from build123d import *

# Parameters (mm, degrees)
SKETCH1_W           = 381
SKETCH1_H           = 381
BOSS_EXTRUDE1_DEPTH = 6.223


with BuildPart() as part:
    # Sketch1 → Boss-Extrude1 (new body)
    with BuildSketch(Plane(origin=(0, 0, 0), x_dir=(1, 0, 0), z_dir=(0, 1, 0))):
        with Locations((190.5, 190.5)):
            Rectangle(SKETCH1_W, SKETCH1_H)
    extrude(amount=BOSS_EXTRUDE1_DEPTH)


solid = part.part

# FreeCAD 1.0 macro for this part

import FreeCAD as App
import Part
import Sketcher

V = App.Vector
Q = App.Units.Quantity


def add_polygon(sketch, points):
    """Adds a closed chain of lines whose ends are joined by coincident constraints."""
    first, n = sketch.GeometryCount, len(points)
    for a, b in zip(points, points[1:] + points[:1]):
        sketch.addGeometry(Part.LineSegment(App.Vector(*a, 0), App.Vector(*b, 0)), False)
    for i in range(n):
        sketch.addConstraint(Sketcher.Constraint("Coincident", first + i, 2, first + (i + 1) % n, 1))

doc = App.newDocument("Part")
body = doc.addObject("PartDesign::Body", "Body")

# Sketch on XZ plane
sketch1 = doc.addObject("Sketcher::SketchObject", "Sketch")
body.addObject(sketch1)
sketch1.AttachmentSupport = (doc.XZ_Plane, [""])
sketch1.MapMode = "FlatFace"
add_polygon(sketch1, [(0, -381), (0, 0), (381, 0), (381, -381)])  # lines 0-3
sketch1.addConstraint([
    Sketcher.Constraint("Vertical", 0),
    Sketcher.Constraint("Horizontal", 1),
    Sketcher.Constraint("Vertical", 2),
    Sketcher.Constraint("Horizontal", 3),
    Sketcher.Constraint("Coincident", 0, 2, -1, 1),
    Sketcher.Constraint("Equal", 3, 0),
    Sketcher.Constraint("DistanceX", 1, 1, 1, 2, Q("15 in")),
])
pad1 = doc.addObject("PartDesign::Pad", "Pad")
body.addObject(pad1)
pad1.Profile = sketch1
pad1.Length = Q("0.245 in")
pad1.Reversed = True

doc.recompute()
